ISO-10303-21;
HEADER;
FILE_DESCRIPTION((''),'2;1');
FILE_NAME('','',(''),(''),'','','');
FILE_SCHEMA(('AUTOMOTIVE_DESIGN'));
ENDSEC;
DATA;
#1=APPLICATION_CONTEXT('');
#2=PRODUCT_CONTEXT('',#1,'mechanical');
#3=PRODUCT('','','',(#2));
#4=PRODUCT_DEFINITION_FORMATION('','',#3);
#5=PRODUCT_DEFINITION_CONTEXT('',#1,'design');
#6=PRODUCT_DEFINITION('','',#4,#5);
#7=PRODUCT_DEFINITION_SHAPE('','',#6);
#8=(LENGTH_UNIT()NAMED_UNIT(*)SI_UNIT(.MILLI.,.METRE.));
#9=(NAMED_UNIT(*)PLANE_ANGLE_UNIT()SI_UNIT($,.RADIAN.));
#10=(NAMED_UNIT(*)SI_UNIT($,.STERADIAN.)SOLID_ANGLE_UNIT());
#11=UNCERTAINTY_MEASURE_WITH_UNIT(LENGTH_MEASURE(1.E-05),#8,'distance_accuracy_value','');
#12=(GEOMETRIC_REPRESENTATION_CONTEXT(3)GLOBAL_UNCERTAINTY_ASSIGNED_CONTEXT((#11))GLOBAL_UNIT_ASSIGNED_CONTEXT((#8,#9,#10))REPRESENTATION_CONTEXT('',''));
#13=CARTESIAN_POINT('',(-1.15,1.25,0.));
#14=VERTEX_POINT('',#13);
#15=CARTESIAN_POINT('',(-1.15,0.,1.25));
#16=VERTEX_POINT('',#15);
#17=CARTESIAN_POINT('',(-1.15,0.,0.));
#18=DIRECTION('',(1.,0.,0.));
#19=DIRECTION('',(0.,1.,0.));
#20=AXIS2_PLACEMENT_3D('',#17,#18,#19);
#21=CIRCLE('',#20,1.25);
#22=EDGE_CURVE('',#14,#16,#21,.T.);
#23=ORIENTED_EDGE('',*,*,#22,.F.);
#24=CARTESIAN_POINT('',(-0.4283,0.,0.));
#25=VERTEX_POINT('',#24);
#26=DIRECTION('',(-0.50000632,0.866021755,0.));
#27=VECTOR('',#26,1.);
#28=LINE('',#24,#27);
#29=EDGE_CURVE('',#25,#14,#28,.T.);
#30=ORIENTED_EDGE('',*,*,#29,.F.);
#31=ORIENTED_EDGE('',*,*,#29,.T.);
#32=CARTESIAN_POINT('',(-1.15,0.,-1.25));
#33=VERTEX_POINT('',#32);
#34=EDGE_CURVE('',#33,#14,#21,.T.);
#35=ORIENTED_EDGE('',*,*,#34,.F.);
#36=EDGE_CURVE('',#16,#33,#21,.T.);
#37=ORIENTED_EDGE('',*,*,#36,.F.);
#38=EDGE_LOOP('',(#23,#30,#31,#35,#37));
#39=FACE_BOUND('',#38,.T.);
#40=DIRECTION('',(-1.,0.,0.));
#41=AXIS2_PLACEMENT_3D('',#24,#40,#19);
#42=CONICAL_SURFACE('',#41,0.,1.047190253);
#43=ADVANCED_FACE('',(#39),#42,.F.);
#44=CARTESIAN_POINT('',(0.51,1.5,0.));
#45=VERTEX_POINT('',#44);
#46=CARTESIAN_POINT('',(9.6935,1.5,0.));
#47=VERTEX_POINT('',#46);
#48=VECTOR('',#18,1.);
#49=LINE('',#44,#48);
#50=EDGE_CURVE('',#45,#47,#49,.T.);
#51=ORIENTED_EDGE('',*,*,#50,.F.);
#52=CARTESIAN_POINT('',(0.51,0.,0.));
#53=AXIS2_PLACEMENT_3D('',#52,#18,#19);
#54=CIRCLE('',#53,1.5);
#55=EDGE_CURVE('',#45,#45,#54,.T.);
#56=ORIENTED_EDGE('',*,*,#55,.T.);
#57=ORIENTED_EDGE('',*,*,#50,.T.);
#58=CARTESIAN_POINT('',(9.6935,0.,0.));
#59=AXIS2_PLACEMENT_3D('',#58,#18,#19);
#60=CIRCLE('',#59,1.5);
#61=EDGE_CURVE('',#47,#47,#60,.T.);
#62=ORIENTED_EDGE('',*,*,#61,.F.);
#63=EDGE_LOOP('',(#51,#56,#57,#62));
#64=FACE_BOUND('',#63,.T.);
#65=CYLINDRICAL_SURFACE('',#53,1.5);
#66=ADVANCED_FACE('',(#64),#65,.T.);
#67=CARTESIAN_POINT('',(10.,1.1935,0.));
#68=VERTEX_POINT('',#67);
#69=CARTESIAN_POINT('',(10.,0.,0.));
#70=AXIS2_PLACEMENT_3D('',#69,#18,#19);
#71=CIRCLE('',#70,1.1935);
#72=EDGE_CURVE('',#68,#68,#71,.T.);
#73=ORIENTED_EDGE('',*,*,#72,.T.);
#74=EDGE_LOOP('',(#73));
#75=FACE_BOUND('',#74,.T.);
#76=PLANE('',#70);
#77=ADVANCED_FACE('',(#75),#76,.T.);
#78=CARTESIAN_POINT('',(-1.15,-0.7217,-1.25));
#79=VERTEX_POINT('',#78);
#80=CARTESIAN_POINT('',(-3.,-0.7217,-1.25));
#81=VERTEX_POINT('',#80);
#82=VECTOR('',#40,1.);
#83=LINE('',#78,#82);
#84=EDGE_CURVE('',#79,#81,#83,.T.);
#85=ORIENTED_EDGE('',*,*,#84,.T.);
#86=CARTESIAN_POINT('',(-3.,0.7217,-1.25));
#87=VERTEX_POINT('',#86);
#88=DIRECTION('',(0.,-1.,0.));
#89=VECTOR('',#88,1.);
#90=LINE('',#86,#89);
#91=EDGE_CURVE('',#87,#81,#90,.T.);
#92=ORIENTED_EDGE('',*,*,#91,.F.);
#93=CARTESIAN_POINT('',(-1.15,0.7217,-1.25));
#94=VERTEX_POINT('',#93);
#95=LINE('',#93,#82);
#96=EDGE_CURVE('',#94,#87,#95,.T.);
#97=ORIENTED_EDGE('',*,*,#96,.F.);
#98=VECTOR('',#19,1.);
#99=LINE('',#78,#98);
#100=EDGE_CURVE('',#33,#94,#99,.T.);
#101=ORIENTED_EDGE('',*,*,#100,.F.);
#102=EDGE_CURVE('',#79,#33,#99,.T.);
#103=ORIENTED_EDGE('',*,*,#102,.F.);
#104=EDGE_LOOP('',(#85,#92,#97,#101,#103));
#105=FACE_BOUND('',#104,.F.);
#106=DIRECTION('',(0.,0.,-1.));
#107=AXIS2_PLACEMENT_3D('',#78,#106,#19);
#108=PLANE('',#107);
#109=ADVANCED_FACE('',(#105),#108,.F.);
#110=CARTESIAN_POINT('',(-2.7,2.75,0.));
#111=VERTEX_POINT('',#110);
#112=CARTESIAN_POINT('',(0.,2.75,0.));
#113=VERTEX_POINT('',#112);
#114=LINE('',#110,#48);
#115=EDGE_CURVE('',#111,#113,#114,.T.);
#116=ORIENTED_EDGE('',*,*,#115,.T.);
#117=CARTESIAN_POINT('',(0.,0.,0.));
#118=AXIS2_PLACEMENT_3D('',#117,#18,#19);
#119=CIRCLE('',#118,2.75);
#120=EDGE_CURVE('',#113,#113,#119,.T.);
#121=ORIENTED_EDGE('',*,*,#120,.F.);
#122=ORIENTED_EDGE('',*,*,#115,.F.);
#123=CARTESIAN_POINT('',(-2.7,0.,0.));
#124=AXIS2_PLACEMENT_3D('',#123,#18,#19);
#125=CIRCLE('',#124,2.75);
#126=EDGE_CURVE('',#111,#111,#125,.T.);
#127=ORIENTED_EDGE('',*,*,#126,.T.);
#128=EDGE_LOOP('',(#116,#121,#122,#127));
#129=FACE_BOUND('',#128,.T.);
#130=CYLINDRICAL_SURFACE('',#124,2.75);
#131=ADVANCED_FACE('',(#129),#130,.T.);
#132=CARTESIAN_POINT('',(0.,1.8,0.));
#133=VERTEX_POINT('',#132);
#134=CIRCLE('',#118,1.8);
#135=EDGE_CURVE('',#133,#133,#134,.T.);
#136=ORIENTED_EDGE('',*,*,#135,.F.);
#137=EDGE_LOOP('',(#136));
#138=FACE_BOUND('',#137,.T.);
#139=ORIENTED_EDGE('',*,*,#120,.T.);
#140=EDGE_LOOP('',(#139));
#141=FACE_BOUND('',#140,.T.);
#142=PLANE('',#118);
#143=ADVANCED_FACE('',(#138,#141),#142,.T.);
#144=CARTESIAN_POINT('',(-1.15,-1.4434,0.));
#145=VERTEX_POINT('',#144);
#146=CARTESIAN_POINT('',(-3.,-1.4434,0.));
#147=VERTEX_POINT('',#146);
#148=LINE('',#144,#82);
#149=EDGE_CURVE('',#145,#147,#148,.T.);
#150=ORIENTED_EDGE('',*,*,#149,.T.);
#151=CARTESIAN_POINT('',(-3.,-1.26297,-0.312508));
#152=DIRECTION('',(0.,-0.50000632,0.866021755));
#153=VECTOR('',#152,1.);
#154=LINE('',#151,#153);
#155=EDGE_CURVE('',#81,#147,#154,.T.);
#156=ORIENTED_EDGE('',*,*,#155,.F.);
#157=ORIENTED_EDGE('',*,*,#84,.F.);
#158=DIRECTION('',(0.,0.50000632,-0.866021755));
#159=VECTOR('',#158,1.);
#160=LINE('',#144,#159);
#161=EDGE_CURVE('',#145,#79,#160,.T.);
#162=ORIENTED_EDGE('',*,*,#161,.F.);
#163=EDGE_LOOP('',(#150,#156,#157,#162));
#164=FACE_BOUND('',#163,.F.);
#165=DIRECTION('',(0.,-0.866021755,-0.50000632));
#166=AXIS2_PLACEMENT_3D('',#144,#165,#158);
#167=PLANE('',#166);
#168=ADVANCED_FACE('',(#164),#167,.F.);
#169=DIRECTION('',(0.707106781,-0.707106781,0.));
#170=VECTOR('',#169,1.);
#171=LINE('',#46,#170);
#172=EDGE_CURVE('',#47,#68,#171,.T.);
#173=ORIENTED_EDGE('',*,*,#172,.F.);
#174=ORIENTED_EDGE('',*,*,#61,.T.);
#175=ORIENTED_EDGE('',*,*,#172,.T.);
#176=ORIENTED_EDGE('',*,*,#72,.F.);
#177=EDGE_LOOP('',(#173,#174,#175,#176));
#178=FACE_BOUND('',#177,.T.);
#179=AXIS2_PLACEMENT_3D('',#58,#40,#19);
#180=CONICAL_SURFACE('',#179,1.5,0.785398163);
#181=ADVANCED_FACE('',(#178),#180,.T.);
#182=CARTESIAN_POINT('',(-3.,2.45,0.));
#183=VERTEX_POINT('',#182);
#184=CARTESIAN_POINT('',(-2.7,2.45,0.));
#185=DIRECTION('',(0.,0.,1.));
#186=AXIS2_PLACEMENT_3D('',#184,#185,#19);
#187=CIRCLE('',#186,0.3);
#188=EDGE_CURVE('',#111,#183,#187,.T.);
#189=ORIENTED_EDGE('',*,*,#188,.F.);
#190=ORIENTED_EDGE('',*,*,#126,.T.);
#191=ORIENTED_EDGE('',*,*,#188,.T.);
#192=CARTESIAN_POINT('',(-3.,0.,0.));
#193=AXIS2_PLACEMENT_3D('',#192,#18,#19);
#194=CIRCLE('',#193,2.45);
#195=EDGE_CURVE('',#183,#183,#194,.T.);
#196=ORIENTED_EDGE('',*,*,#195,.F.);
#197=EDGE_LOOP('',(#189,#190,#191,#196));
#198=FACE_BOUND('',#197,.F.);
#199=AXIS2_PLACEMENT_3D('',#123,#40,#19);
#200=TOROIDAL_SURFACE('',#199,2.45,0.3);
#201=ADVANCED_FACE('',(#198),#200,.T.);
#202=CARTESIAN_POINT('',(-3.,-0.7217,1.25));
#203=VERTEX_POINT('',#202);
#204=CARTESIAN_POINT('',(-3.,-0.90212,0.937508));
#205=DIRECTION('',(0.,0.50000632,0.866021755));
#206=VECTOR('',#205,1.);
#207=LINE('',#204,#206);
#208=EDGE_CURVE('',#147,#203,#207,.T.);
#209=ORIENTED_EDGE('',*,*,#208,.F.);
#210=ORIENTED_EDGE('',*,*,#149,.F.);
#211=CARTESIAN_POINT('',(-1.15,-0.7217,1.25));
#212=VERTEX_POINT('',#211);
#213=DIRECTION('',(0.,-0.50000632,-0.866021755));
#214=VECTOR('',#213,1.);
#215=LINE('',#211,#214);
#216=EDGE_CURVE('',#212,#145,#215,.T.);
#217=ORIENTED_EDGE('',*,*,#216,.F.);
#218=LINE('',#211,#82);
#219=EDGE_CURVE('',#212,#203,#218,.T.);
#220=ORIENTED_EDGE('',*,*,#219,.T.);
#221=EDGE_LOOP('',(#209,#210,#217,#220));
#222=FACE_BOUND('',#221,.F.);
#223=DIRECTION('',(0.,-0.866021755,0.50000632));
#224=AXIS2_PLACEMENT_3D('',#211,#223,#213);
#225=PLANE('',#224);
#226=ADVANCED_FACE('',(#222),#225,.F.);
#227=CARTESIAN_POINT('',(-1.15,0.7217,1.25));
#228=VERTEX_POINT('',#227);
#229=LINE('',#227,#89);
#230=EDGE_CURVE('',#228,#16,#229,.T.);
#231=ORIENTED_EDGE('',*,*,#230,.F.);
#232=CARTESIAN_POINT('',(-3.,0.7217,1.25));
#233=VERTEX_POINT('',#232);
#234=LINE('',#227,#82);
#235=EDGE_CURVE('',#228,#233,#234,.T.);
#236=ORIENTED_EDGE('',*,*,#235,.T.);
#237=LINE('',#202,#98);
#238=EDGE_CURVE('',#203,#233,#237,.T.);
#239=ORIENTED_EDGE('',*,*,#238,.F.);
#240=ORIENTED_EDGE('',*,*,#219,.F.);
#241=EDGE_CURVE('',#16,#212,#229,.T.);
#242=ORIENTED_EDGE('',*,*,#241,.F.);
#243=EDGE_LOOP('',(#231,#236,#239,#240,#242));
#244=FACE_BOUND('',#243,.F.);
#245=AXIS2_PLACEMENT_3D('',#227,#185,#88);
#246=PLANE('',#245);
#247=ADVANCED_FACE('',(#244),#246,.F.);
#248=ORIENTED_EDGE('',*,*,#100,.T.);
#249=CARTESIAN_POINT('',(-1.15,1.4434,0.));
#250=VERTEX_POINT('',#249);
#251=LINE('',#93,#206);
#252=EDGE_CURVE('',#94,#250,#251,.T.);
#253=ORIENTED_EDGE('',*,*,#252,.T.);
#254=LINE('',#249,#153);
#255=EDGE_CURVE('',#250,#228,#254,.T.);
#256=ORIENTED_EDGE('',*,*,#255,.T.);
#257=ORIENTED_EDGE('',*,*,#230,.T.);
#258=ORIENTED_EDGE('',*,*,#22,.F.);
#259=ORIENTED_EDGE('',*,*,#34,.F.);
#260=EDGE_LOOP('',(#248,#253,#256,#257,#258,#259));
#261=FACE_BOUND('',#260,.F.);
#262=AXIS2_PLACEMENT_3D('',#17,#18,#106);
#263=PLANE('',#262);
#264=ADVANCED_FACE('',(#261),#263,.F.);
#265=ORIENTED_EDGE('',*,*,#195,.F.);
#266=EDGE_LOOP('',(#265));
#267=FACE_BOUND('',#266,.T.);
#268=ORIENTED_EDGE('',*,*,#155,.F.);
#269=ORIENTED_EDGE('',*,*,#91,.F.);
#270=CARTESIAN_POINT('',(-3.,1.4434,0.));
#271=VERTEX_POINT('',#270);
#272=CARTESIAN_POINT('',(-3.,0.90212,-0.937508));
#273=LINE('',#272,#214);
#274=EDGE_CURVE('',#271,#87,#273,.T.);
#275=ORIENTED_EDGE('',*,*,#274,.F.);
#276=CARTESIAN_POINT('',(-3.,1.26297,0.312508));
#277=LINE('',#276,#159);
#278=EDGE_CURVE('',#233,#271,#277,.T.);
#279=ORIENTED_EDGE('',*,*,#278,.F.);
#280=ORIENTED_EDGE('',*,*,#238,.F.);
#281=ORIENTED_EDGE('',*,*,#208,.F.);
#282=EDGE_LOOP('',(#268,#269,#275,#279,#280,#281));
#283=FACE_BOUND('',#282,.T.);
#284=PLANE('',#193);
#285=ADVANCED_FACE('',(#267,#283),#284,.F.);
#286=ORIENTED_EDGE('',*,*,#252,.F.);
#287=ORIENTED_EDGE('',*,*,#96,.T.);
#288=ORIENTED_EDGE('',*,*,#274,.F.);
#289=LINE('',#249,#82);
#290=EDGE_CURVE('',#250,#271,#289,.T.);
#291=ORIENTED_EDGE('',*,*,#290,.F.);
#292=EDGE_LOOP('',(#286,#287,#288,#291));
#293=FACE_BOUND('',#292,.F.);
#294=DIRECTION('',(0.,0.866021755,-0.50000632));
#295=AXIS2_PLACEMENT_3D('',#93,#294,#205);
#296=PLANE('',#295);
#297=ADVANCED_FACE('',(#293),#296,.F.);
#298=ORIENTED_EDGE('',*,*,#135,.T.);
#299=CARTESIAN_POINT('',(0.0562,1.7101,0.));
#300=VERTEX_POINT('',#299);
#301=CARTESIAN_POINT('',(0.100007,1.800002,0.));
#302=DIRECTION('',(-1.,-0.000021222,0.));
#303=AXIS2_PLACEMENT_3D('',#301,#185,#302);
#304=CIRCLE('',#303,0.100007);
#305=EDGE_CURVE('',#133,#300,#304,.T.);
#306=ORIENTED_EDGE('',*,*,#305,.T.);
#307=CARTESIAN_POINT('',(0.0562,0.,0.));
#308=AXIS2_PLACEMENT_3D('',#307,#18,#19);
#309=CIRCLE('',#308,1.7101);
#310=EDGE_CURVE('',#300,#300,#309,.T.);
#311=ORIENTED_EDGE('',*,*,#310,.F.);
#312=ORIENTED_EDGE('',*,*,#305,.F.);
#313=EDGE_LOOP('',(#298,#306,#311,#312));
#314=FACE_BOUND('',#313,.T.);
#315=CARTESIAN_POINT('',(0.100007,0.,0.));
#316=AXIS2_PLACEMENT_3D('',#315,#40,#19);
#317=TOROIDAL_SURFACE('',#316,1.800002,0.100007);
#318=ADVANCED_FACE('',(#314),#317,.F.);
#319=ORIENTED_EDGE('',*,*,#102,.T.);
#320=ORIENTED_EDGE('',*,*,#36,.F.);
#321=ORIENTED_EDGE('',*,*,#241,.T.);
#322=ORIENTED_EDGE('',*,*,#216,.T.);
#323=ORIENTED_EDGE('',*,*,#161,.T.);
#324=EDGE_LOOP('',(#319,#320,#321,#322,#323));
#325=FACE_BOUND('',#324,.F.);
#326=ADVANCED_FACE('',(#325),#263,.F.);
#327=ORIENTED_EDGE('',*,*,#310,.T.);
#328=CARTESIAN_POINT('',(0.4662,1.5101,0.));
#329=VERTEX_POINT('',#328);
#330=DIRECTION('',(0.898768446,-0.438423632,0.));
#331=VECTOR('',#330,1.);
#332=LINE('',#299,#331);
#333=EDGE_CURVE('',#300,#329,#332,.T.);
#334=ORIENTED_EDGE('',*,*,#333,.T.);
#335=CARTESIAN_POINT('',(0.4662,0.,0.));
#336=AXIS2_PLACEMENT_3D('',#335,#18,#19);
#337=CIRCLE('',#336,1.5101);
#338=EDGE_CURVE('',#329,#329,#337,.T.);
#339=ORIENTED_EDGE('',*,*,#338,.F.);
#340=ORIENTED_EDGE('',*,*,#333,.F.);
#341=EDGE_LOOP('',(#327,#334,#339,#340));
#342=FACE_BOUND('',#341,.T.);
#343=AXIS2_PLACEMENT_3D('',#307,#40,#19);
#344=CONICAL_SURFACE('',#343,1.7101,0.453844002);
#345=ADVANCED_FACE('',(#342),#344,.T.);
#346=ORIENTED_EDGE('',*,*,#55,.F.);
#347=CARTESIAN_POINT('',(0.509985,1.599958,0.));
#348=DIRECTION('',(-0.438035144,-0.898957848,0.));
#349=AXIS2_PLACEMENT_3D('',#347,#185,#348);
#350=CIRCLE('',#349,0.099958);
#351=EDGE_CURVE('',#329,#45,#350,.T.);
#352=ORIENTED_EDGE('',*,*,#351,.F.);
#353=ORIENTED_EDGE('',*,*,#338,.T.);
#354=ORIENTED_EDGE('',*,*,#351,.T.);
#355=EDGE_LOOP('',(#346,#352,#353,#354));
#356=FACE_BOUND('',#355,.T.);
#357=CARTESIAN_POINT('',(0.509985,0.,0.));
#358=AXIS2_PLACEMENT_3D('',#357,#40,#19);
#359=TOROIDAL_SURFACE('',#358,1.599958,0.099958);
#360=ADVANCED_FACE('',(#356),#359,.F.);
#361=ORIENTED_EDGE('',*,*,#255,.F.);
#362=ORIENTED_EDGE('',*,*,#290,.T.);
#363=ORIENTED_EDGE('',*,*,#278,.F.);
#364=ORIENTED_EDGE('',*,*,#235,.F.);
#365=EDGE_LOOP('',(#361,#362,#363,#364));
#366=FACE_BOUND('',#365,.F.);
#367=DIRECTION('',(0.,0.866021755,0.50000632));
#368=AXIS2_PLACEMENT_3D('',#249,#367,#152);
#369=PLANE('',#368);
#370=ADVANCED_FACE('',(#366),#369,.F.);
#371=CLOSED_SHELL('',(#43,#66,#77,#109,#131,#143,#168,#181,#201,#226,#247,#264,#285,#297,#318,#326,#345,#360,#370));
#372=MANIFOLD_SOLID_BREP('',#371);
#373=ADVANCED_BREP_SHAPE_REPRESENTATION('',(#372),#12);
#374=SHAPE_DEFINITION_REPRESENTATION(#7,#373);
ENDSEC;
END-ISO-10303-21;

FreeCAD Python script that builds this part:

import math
import FreeCAD as App
import Part
import Sketcher

V = App.Vector
Q = App.Units.Quantity


def add_polygon(sketch, points):
    """Adds a closed chain of lines whose ends are joined by coincident constraints."""
    first, n = sketch.GeometryCount, len(points)
    for a, b in zip(points, points[1:] + points[:1]):
        sketch.addGeometry(Part.LineSegment(App.Vector(*a, 0), App.Vector(*b, 0)), False)
    for i in range(n):
        sketch.addConstraint(Sketcher.Constraint("Coincident", first + i, 2, first + (i + 1) % n, 1))

doc = App.newDocument("Part")
params = doc.addObject("Spreadsheet::Sheet", "Params")
for row, (alias, value) in enumerate([
    ("sketch1_radius", "0.1 mm"),
    ("sketch1_radius2", "0.3 mm"),
    ("sketch1_width", "2.7 mm"),
    ("sketch1_height", "1.2 mm"),
    ("sketch1_width2", "1.85 mm"),
    ("revolution_angle", "360 deg"),
    ("pocket1_length", "2.6 mm"),
], start=1):
    params.set(f"A{row}", alias)
    params.set(f"B{row}", "=" + value)
    params.setAlias(f"B{row}", alias)

body = doc.addObject("PartDesign::Body", "Body")

# Sketch on XY plane
sketch1 = body.newObject("Sketcher::SketchObject", "Sketch")
sketch1.AttachmentSupport = (doc.getObject("XY_Plane"), [""])
sketch1.MapMode = "FlatFace"
sketch1.addGeometry([
    Part.LineSegment(V(-0.428, 0, 0), V(10, 0, 0)),  # 0
    Part.LineSegment(V(10, 0, 0), V(10, 1.194, 0)),  # 1
    Part.LineSegment(V(10, 1.194, 0), V(9.694, 1.5, 0)),  # 2
    Part.LineSegment(V(9.694, 1.5, 0), V(0.51, 1.5, 0)),  # 3
    Part.ArcOfCircle(Part.Circle(V(0.51, 1.6, 0), V(0, 0, 1), 0.1), math.radians(-116), math.radians(-90)),  # 4
    Part.LineSegment(V(0.466, 1.51, 0), V(0.056, 1.71, 0)),  # 5
    Part.ArcOfCircle(Part.Circle(V(0.1, 1.8, 0), V(0, 0, 1), 0.1), math.radians(180), math.radians(244)),  # 6
    Part.LineSegment(V(0, 1.8, 0), V(0, 2.75, 0)),  # 7
    Part.LineSegment(V(0, 2.75, 0), V(-2.7, 2.75, 0)),  # 8
    Part.ArcOfCircle(Part.Circle(V(-2.7, 2.45, 0), V(0, 0, 1), 0.3), math.radians(90), math.radians(180)),  # 9
    Part.LineSegment(V(-3, 2.45, 0), V(-3, 1.25, 0)),  # 10
    Part.LineSegment(V(-3, 1.25, 0), V(-1.15, 1.25, 0)),  # 11
    Part.LineSegment(V(-1.15, 1.25, 0), V(-0.428, 0, 0)),  # 12
], False)
sketch1.addConstraint([
    Sketcher.Constraint("Coincident", 0, 2, 1, 1),
    Sketcher.Constraint("Coincident", 1, 2, 2, 1),
    Sketcher.Constraint("Coincident", 2, 2, 3, 1),
    Sketcher.Constraint("Tangent", 3, 2, 4, 2),
    Sketcher.Constraint("Tangent", 4, 1, 5, 1),
    Sketcher.Constraint("Tangent", 5, 2, 6, 2),
    Sketcher.Constraint("Tangent", 6, 1, 7, 1),
    Sketcher.Constraint("Coincident", 7, 2, 8, 1),
    Sketcher.Constraint("Tangent", 8, 2, 9, 1),
    Sketcher.Constraint("Tangent", 9, 2, 10, 1),
    Sketcher.Constraint("Coincident", 10, 2, 11, 1),
    Sketcher.Constraint("Coincident", 11, 2, 12, 1),
    Sketcher.Constraint("Coincident", 12, 2, 0, 1),
    Sketcher.Constraint("Horizontal", 0),
    Sketcher.Constraint("Vertical", 1),
    Sketcher.Constraint("Horizontal", 3),
    Sketcher.Constraint("Vertical", 7),
    Sketcher.Constraint("Horizontal", 8),
    Sketcher.Constraint("Vertical", 10),
    Sketcher.Constraint("Horizontal", 11),
    Sketcher.Constraint("Equal", 4, 6),
    Sketcher.Constraint("PointOnObject", 0, 2, -1),
    Sketcher.Constraint("PointOnObject", 6, 1, -2),
    Sketcher.Constraint("Radius", 4, 0.1),
    Sketcher.Constraint("Radius", 9, 0.3),
    Sketcher.Constraint("Angle", 2, Q("135 deg")),
    Sketcher.Constraint("Angle", 12, Q("-59.9996 deg")),
    Sketcher.Constraint("DistanceX", 8, 2, 8, 1, 2.7),
    Sketcher.Constraint("DistanceY", 10, 2, 10, 1, 1.2),
    Sketcher.Constraint("DistanceX", -1, 1, 0, 2, 10.0),
    Sketcher.Constraint("DistanceX", 11, 1, 11, 2, 1.85),
    Sketcher.Constraint("DistanceY", 7, 1, 7, 2, 0.95),
    Sketcher.Constraint("DistanceY", -1, 1, 4, 3, 1.6),
    Sketcher.Constraint("DistanceY", -1, 1, 6, 3, 1.8),
    Sketcher.Constraint("DistanceX", -1, 1, 4, 3, 0.51),
    Sketcher.Constraint("DistanceX", 3, 2, 3, 1, 9.1835),
])
sketch1.setExpression("Constraints[23]", "Params.sketch1_radius")
sketch1.setExpression("Constraints[24]", "Params.sketch1_radius2")
sketch1.setExpression("Constraints[27]", "Params.sketch1_width")
sketch1.setExpression("Constraints[28]", "Params.sketch1_height")
sketch1.setExpression("Constraints[30]", "Params.sketch1_width2")
revolution = body.newObject("PartDesign::Revolution", "Revolution")
revolution.Profile = sketch1
revolution.ReferenceAxis = (sketch1, ["H_Axis"])
revolution.setExpression("Angle", "Params.revolution_angle")

# Sketch on YZ plane
sketch2 = body.newObject("Sketcher::SketchObject", "Sketch001")
sketch2.AttachmentSupport = (doc.getObject("YZ_Plane"), [""])
sketch2.MapMode = "FlatFace"
sketch2.AttachmentOffset = App.Placement(V(0, 0, -1.15), App.Rotation())
add_polygon(sketch2, [(0.7, 1.2), (-0.7, 1.2), (-1.4, 0), (-0.7, -1.2), (0.7, -1.2), (1.4, 0)])  # lines 0-5
sketch2.addConstraint([
    Sketcher.Constraint("Horizontal", 0),
    Sketcher.Constraint("Horizontal", 3),
    Sketcher.Constraint("Symmetric", 0, 2, 3, 2, -1, 1),
    Sketcher.Constraint("Symmetric", 1, 2, 4, 2, -1, 1),
    Sketcher.Constraint("PointOnObject", 1, 2, -1),
    Sketcher.Constraint("Parallel", 2, 5),
    Sketcher.Constraint("Vertical", 0, 2, 2, 2),
    Sketcher.Constraint("Angle", 1, Q("-120.0004 deg")),
    Sketcher.Constraint("DistanceY", 2, 2, 0, 2, 2.5),
    Sketcher.Constraint("DistanceX", 0, 2, 0, 1, 1.4434),
])
pocket1 = body.newObject("PartDesign::Pocket", "Pocket")
pocket1.Profile = sketch2
pocket1.setExpression("Length", "Params.pocket1_length")

doc.recompute()
